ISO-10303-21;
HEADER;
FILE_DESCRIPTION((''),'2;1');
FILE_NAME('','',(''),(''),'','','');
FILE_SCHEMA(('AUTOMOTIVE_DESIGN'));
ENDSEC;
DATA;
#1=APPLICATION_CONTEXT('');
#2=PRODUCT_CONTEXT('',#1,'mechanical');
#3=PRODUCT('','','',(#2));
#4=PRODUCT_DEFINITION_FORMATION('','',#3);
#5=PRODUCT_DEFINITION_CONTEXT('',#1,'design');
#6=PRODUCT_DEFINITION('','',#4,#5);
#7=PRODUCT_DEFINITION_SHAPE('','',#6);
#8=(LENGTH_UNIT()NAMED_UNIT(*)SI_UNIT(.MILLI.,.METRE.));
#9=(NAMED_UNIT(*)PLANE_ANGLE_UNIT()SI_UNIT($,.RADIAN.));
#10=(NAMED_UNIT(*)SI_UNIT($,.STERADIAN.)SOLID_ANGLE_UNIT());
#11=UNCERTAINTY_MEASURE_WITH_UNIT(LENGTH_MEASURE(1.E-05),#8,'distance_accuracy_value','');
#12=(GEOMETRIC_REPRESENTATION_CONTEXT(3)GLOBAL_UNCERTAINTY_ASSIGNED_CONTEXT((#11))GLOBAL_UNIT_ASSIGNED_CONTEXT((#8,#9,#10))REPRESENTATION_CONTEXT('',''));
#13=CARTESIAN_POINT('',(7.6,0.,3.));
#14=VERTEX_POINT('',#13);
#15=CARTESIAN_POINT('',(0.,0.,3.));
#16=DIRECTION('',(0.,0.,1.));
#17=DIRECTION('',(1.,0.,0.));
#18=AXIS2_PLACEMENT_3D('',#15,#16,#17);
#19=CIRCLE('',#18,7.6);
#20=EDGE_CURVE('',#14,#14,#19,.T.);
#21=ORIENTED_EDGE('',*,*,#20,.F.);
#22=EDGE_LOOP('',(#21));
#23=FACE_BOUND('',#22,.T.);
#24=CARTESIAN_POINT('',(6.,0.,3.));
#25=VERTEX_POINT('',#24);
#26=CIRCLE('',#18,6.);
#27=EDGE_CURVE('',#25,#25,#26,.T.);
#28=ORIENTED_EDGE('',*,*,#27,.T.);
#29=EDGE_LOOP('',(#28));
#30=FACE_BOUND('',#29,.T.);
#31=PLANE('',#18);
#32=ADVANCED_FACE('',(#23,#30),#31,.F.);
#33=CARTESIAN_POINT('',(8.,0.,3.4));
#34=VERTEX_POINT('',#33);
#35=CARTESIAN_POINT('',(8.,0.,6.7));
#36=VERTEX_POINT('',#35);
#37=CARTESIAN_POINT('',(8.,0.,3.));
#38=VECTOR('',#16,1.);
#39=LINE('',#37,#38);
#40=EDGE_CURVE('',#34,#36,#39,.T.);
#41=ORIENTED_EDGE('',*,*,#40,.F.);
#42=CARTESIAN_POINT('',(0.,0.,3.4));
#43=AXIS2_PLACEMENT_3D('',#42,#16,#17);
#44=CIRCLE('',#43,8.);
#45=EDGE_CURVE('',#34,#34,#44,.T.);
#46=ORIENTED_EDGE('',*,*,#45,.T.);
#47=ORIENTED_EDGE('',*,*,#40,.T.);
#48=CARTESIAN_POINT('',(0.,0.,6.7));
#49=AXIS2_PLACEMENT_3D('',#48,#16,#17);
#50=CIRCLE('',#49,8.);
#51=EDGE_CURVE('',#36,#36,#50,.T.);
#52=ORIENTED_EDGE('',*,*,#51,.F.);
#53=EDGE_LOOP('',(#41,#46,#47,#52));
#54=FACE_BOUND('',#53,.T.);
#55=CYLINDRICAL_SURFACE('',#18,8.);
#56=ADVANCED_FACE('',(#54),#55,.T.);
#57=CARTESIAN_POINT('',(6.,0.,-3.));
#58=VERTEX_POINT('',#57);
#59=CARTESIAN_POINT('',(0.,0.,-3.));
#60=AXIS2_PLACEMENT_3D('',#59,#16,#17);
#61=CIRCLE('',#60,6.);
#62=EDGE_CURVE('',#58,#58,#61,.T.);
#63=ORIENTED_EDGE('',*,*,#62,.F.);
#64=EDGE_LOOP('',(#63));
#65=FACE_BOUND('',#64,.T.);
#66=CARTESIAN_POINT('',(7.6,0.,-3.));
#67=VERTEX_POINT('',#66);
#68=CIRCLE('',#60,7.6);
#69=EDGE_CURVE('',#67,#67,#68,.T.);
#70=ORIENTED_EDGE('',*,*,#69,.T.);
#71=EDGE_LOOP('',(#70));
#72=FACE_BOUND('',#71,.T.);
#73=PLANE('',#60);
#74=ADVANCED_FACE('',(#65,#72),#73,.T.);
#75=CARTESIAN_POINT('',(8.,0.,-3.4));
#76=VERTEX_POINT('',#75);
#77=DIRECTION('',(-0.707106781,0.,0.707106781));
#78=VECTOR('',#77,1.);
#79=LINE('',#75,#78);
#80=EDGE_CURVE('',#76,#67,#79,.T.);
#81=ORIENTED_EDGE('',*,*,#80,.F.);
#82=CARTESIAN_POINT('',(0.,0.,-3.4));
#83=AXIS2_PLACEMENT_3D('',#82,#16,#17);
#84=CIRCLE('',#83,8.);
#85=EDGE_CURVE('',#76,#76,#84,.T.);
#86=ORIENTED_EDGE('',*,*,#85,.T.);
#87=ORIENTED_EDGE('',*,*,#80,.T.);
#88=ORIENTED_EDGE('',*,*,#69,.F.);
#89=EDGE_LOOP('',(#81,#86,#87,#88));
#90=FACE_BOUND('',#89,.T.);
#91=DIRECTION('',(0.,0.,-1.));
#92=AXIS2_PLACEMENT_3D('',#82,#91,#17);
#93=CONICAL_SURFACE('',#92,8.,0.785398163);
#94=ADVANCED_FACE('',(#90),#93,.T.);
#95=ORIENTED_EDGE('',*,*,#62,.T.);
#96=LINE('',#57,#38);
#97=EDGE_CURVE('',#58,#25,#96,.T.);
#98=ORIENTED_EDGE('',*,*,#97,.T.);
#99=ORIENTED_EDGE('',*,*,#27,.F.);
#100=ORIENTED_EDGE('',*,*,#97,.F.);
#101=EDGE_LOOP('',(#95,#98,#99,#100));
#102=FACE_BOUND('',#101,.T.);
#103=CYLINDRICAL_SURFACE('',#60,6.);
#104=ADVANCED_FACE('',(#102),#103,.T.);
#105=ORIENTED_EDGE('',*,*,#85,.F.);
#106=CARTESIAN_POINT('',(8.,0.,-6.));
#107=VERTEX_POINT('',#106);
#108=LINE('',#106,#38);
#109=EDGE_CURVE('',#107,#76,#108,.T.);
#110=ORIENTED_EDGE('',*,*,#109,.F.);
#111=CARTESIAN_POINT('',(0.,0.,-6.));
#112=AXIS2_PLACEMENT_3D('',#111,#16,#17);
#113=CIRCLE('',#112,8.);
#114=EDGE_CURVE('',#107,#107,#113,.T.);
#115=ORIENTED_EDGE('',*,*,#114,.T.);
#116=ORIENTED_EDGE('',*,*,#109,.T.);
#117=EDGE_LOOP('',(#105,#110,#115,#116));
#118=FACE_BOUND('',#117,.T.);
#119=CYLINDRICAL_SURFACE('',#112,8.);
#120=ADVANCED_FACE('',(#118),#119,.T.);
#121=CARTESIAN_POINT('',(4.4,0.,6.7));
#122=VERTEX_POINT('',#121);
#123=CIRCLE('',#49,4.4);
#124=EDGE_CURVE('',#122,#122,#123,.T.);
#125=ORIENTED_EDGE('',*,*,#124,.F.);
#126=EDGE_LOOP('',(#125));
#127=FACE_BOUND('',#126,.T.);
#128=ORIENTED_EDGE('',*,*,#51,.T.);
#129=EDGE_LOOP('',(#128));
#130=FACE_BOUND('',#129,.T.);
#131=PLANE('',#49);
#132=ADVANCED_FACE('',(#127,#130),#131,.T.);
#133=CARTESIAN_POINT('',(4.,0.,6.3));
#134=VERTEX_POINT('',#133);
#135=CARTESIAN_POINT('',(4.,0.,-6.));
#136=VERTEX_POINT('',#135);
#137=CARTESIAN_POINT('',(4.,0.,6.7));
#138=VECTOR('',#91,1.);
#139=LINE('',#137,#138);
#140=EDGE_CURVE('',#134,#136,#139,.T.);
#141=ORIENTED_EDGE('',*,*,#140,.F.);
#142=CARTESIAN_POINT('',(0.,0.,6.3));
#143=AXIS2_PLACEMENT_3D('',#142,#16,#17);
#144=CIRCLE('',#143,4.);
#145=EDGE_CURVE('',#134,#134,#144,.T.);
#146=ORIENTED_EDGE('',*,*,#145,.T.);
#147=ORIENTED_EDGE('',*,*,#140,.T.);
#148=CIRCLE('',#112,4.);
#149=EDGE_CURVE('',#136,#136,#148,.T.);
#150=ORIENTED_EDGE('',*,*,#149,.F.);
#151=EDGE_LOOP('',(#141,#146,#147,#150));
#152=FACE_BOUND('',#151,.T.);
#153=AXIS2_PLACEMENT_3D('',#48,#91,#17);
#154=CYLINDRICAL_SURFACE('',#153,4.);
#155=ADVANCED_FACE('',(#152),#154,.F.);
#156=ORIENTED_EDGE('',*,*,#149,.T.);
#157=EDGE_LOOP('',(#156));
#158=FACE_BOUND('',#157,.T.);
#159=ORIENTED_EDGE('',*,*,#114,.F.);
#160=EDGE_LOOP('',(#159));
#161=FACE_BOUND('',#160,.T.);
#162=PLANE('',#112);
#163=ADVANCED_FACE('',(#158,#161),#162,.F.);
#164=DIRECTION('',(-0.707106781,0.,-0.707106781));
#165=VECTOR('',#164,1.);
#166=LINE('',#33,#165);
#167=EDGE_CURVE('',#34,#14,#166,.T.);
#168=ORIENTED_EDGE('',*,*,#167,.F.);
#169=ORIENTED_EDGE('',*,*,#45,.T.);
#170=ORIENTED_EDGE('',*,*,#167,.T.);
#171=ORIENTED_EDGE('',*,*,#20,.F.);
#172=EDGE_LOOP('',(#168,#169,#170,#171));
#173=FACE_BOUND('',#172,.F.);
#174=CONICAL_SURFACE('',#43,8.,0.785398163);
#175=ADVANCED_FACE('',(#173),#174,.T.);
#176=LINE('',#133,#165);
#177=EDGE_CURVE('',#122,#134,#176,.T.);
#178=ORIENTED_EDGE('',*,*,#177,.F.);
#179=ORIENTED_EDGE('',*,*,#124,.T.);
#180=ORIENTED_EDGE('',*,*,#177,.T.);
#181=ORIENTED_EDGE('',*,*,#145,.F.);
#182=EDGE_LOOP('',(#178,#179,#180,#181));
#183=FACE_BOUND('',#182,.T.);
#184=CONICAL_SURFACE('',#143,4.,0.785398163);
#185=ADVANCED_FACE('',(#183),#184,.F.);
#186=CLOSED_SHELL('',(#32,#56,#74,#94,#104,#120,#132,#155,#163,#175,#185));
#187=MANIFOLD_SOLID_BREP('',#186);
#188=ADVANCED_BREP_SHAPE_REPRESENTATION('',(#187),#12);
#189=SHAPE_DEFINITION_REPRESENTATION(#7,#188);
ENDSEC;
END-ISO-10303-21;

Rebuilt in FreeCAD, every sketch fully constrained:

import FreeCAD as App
import Part
import Sketcher


def edges_at(feature, points):
    """Names of the edges that pass closest to the given points."""
    edges = feature.Shape.Edges
    near = lambda p: min(range(len(edges)), key=lambda i: edges[i].distToShape(Part.Vertex(*p))[0])
    return sorted({f"Edge{near(p) + 1}" for p in points})

doc = App.newDocument("Part")
params = doc.addObject("Spreadsheet::Sheet", "Params")
for row, (alias, value) in enumerate([
    ("sketch1_width", "4 mm"),
    ("sketch1_width2", "2 mm"),
    ("sketch1_height", "3 mm"),
    ("sketch1_height2", "6 mm"),
    ("sketch1_height3", "3.7 mm"),
    ("revolution_angle", "360 deg"),
    ("chamfer_size", "0.4 mm"),
], start=1):
    params.set(f"A{row}", alias)
    params.set(f"B{row}", "=" + value)
    params.setAlias(f"B{row}", alias)

body = doc.addObject("PartDesign::Body", "Body")

# Sketch on XZ plane
sketch1 = body.newObject("Sketcher::SketchObject", "Sketch")
sketch1.AttachmentSupport = (doc.getObject("XZ_Plane"), [""])
sketch1.MapMode = "FlatFace"
sketch1.addGeometry(Part.LineSegment(App.Vector(8, 3, 0), App.Vector(8, 6.7, 0)), False)
sketch1.addGeometry(Part.LineSegment(App.Vector(8, 6.7, 0), App.Vector(4, 6.7, 0)), False)
sketch1.addGeometry(Part.LineSegment(App.Vector(4, 6.7, 0), App.Vector(4, -6, 0)), False)
sketch1.addGeometry(Part.LineSegment(App.Vector(4, -6, 0), App.Vector(8, -6, 0)), False)
sketch1.addGeometry(Part.LineSegment(App.Vector(8, -6, 0), App.Vector(8, -3, 0)), False)
sketch1.addGeometry(Part.LineSegment(App.Vector(8, -3, 0), App.Vector(6, -3, 0)), False)
sketch1.addGeometry(Part.LineSegment(App.Vector(6, -3, 0), App.Vector(6, 3, 0)), False)
sketch1.addGeometry(Part.LineSegment(App.Vector(6, 3, 0), App.Vector(8, 3, 0)), False)
sketch1.addConstraint(Sketcher.Constraint("Coincident", 0, 2, 1, 1))
sketch1.addConstraint(Sketcher.Constraint("Coincident", 1, 2, 2, 1))
sketch1.addConstraint(Sketcher.Constraint("Coincident", 2, 2, 3, 1))
sketch1.addConstraint(Sketcher.Constraint("Coincident", 3, 2, 4, 1))
sketch1.addConstraint(Sketcher.Constraint("Coincident", 4, 2, 5, 1))
sketch1.addConstraint(Sketcher.Constraint("Coincident", 5, 2, 6, 1))
sketch1.addConstraint(Sketcher.Constraint("Coincident", 6, 2, 7, 1))
sketch1.addConstraint(Sketcher.Constraint("Coincident", 7, 2, 0, 1))
sketch1.addConstraint(Sketcher.Constraint("Vertical", 0))
sketch1.addConstraint(Sketcher.Constraint("Horizontal", 1))
sketch1.addConstraint(Sketcher.Constraint("Vertical", 2))
sketch1.addConstraint(Sketcher.Constraint("Horizontal", 3))
sketch1.addConstraint(Sketcher.Constraint("Vertical", 4))
sketch1.addConstraint(Sketcher.Constraint("Horizontal", 5))
sketch1.addConstraint(Sketcher.Constraint("Vertical", 6))
sketch1.addConstraint(Sketcher.Constraint("Horizontal", 7))
sketch1.addConstraint(Sketcher.Constraint("Symmetric", 4, 2, 7, 2, -1))
sketch1.addConstraint(Sketcher.Constraint("DistanceX", 1, 2, 1, 1, 4.0))
sketch1.addConstraint(Sketcher.Constraint("DistanceX", 5, 2, 5, 1, 2.0))
sketch1.addConstraint(Sketcher.Constraint("DistanceY", 4, 1, 4, 2, 3.0))
sketch1.addConstraint(Sketcher.Constraint("DistanceY", 6, 1, 6, 2, 6.0))
sketch1.addConstraint(Sketcher.Constraint("DistanceY", 0, 1, 0, 2, 3.7))
sketch1.addConstraint(Sketcher.Constraint("DistanceX", -1, 1, 0, 2, 8.0))
sketch1.setExpression("Constraints[17]", "Params.sketch1_width")
sketch1.setExpression("Constraints[18]", "Params.sketch1_width2")
sketch1.setExpression("Constraints[19]", "Params.sketch1_height")
sketch1.setExpression("Constraints[20]", "Params.sketch1_height2")
sketch1.setExpression("Constraints[21]", "Params.sketch1_height3")
revolution = body.newObject("PartDesign::Revolution", "Revolution")
revolution.Profile = sketch1
revolution.ReferenceAxis = (sketch1, ["V_Axis"])
revolution.setExpression("Angle", "Params.revolution_angle")
doc.recompute()

chamfer = body.newObject("PartDesign::Chamfer", "Chamfer")
chamfer.Base = (revolution, edges_at(revolution, [(-8, 0, 3), (-8, 0, -3), (-4, 0, 6.7)]))
chamfer.setExpression("Size", "Params.chamfer_size")

doc.recompute()
